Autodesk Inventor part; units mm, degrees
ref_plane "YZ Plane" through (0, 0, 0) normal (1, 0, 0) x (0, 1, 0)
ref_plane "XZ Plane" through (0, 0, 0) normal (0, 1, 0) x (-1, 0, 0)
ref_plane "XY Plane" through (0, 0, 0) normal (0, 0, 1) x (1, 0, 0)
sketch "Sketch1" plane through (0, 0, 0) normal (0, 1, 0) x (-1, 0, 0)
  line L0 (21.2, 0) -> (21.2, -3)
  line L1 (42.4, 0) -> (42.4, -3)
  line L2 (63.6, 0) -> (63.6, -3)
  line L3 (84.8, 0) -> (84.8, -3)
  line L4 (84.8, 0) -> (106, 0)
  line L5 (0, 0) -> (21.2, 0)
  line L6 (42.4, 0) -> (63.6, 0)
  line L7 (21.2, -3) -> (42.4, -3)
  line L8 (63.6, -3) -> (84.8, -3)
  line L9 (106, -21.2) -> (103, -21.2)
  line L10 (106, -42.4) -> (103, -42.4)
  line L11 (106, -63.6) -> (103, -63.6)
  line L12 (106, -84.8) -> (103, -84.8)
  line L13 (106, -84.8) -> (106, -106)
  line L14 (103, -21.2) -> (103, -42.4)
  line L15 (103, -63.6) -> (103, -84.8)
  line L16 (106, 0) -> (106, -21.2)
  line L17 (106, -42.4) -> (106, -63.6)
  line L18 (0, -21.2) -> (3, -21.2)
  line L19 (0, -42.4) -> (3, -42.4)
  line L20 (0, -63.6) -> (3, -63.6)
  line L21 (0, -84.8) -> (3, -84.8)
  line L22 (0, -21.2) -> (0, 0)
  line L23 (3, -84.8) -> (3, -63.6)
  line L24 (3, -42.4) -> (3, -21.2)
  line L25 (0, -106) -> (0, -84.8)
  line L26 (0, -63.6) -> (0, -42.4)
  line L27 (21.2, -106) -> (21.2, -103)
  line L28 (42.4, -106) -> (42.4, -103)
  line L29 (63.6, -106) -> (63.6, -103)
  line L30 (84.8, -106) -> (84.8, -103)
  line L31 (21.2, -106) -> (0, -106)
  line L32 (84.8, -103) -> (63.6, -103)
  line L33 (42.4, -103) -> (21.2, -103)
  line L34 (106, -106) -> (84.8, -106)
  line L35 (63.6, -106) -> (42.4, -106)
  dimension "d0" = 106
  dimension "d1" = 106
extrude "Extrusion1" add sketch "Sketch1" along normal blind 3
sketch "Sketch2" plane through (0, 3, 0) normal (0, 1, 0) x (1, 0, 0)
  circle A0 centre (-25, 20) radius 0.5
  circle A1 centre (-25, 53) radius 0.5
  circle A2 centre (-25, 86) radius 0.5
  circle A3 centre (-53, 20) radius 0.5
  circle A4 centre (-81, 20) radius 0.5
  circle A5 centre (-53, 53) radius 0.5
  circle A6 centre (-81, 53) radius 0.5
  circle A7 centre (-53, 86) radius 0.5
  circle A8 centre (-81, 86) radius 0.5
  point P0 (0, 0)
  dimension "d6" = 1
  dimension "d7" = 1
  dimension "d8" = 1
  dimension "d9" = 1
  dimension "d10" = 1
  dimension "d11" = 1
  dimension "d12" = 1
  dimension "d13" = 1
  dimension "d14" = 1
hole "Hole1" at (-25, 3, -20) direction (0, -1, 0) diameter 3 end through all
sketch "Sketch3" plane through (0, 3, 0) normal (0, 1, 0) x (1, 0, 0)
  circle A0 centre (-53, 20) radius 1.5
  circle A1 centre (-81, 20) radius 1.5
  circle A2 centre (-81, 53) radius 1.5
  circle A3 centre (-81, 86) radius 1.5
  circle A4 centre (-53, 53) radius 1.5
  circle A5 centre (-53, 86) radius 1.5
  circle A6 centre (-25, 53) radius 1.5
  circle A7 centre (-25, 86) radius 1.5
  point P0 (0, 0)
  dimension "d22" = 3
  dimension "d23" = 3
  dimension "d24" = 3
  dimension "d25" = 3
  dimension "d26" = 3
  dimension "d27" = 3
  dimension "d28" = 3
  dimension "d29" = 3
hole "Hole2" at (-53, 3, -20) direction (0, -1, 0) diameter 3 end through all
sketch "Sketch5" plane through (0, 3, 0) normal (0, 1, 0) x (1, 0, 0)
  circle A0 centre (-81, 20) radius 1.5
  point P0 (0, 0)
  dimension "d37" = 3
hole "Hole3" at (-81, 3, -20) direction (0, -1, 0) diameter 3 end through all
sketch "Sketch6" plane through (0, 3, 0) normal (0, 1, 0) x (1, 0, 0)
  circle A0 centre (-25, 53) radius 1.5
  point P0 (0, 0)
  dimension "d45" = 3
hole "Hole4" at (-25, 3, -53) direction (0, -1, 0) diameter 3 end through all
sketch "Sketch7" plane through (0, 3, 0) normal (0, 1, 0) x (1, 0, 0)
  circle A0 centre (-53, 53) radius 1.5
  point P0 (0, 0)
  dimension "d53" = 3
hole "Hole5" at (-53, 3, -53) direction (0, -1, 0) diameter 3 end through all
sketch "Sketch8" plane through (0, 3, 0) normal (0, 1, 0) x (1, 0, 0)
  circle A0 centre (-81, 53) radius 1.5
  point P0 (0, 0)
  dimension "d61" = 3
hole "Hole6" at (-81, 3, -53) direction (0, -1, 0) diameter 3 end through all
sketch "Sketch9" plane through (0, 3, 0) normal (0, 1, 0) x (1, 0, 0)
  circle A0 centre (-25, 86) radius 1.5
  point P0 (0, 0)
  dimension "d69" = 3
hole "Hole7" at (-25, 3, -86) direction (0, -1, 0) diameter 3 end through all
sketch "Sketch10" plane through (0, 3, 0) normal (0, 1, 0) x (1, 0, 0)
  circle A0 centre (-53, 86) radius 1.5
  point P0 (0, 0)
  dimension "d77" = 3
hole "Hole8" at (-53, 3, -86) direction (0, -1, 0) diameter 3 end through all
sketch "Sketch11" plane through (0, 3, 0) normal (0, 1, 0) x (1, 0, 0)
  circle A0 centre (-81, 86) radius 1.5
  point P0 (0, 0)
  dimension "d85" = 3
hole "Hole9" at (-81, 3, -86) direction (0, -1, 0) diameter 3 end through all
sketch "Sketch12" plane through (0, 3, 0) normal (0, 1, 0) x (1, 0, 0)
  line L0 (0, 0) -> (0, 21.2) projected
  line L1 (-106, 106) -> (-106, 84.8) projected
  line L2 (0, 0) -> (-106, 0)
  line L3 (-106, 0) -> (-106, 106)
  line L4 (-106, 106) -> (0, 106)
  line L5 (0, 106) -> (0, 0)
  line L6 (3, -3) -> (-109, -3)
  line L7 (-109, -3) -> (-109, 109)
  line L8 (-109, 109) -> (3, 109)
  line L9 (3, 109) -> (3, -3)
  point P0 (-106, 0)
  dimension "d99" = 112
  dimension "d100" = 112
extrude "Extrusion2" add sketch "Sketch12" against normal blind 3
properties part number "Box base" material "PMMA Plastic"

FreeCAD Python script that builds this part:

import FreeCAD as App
import Part
import Sketcher
from FreeCAD import Vector
Q = App.Units.Quantity


def add_polygon(sketch, points):
    """Adds a closed chain of lines whose ends are joined by coincident constraints."""
    first, n = sketch.GeometryCount, len(points)
    for a, b in zip(points, points[1:] + points[:1]):
        sketch.addGeometry(Part.LineSegment(App.Vector(*a, 0), App.Vector(*b, 0)), False)
    for i in range(n):
        sketch.addConstraint(Sketcher.Constraint("Coincident", first + i, 2, first + (i + 1) % n, 1))

doc = App.newDocument("Part")
params = doc.addObject("Spreadsheet::Sheet", "Params")
for row, (alias, value) in enumerate([
    ("sketch1_width", "3 mm"),
    ("pad1_length", "3 mm"),
    ("sketch2_diameter", "3 mm"),
    ("hole_diameter", "3 mm"),
    ("sketch3_diameter", "3 mm"),
    ("hole2_diameter", "3 mm"),
    ("sketch4_diameter", "3 mm"),
    ("hole3_diameter", "3 mm"),
    ("sketch5_diameter", "3 mm"),
    ("hole4_diameter", "3 mm"),
    ("sketch6_diameter", "3 mm"),
    ("hole5_diameter", "3 mm"),
    ("sketch7_diameter", "3 mm"),
    ("hole6_diameter", "3 mm"),
    ("sketch8_diameter", "3 mm"),
    ("hole7_diameter", "3 mm"),
    ("sketch9_diameter", "3 mm"),
    ("hole8_diameter", "3 mm"),
    ("sketch10_diameter", "3 mm"),
    ("hole9_diameter", "3 mm"),
    ("sketch11_width", "112 mm"),
    ("sketch11_width2", "106 mm"),
    ("pad2_length", "3 mm"),
], start=1):
    params.set(f"A{row}", alias)
    params.set(f"B{row}", "=" + value)
    params.setAlias(f"B{row}", alias)

body = doc.addObject("PartDesign::Body", "Body")

# Sketch on XZ plane
sketch1 = body.newObject("Sketcher::SketchObject", "Sketch")
sketch1.AttachmentSupport = (doc.getObject("XZ_Plane"), [""])
sketch1.MapMode = "FlatFace"
add_polygon(sketch1, [(-21.2, -3), (-21.2, 0), (0, 0), (0, -21.2), (-3, -21.2), (-3, -42.4), (0, -42.4), (0, -63.6), (-3, -63.6), (-3, -84.8), (0, -84.8), (0, -106), (-21.2, -106), (-21.2, -103), (-42.4, -103), (-42.4, -106), (-63.6, -106), (-63.6, -103), (-84.8, -103), (-84.8, -106), (-106, -106), (-106, -84.8), (-103, -84.8), (-103, -63.6), (-106, -63.6), (-106, -42.4), (-103, -42.4), (-103, -21.2), (-106, -21.2), (-106, 0), (-84.8, 0), (-84.8, -3), (-63.6, -3), (-63.6, 0), (-42.4, 0), (-42.4, -3)])  # lines 0-35
sketch1.addConstraint([
    Sketcher.Constraint("Vertical", 0),
    Sketcher.Constraint("Horizontal", 1),
    Sketcher.Constraint("Vertical", 2),
    Sketcher.Constraint("Horizontal", 3),
    Sketcher.Constraint("Vertical", 4),
    Sketcher.Constraint("Horizontal", 5),
    Sketcher.Constraint("Vertical", 6),
    Sketcher.Constraint("Horizontal", 7),
    Sketcher.Constraint("Vertical", 8),
    Sketcher.Constraint("Horizontal", 9),
    Sketcher.Constraint("Vertical", 10),
    Sketcher.Constraint("Horizontal", 11),
    Sketcher.Constraint("Vertical", 12),
    Sketcher.Constraint("Horizontal", 13),
    Sketcher.Constraint("Vertical", 14),
    Sketcher.Constraint("Horizontal", 15),
    Sketcher.Constraint("Vertical", 16),
    Sketcher.Constraint("Horizontal", 17),
    Sketcher.Constraint("Vertical", 18),
    Sketcher.Constraint("Horizontal", 19),
    Sketcher.Constraint("Vertical", 20),
    Sketcher.Constraint("Horizontal", 21),
    Sketcher.Constraint("Vertical", 22),
    Sketcher.Constraint("Horizontal", 23),
    Sketcher.Constraint("Vertical", 24),
    Sketcher.Constraint("Horizontal", 25),
    Sketcher.Constraint("Vertical", 26),
    Sketcher.Constraint("Horizontal", 27),
    Sketcher.Constraint("Vertical", 28),
    Sketcher.Constraint("Horizontal", 29),
    Sketcher.Constraint("Vertical", 30),
    Sketcher.Constraint("Horizontal", 31),
    Sketcher.Constraint("Vertical", 32),
    Sketcher.Constraint("Horizontal", 33),
    Sketcher.Constraint("Vertical", 34),
    Sketcher.Constraint("Horizontal", 35),
    Sketcher.Constraint("Coincident", 1, 2, -1, 1),
    Sketcher.Constraint("PointOnObject", 5, 2, -2),
    Sketcher.Constraint("PointOnObject", 9, 2, -2),
    Sketcher.Constraint("PointOnObject", 28, 2, -1),
    Sketcher.Constraint("PointOnObject", 32, 2, -1),
    Sketcher.Constraint("Horizontal", 11, 2, 14, 2),
    Sketcher.Constraint("Horizontal", 13, 2, 16, 2),
    Sketcher.Constraint("Horizontal", 15, 2, 18, 2),
    Sketcher.Constraint("Horizontal", 9, 2, 20, 2),
    Sketcher.Constraint("Horizontal", 7, 2, 22, 2),
    Sketcher.Constraint("Horizontal", 5, 2, 24, 2),
    Sketcher.Constraint("Horizontal", 3, 2, 26, 2),
    Sketcher.Constraint("Horizontal", 31, 2, 34, 2),
    Sketcher.Constraint("Vertical", 4, 2, 7, 2),
    Sketcher.Constraint("Vertical", 0, 2, 11, 2),
    Sketcher.Constraint("Vertical", 20, 2, 23, 2),
    Sketcher.Constraint("Vertical", 22, 2, 25, 2),
    Sketcher.Constraint("Vertical", 24, 2, 27, 2),
    Sketcher.Constraint("Vertical", 18, 2, 29, 2),
    Sketcher.Constraint("Vertical", 16, 2, 31, 2),
    Sketcher.Constraint("Vertical", 14, 2, 33, 2),
    Sketcher.Constraint("Equal", 11, 13),
    Sketcher.Constraint("Equal", 13, 15),
    Sketcher.Constraint("Equal", 15, 17),
    Sketcher.Constraint("Equal", 17, 19),
    Sketcher.Constraint("Equal", 9, 21),
    Sketcher.Constraint("Equal", 27, 0),
    Sketcher.Constraint("Equal", 35, 2),
    Sketcher.Constraint("Equal", 2, 4),
    Sketcher.Constraint("Equal", 4, 6),
    Sketcher.Constraint("Equal", 6, 8),
    Sketcher.Constraint("Equal", 8, 10),
    Sketcher.Constraint("Equal", 0, 12),
    Sketcher.Constraint("DistanceY", 10, 2, -1, 1, Q("106 mm")),
    Sketcher.Constraint("DistanceX", 3, 2, 3, 1, Q("3 mm")),
])
sketch1.setExpression("Constraints[106]", "Params.sketch1_width")
pad1 = body.newObject("PartDesign::Pad", "Pad")
pad1.Profile = sketch1
pad1.setExpression("Length", "Params.pad1_length")
pad1.Reversed = True

# Sketch on XZ plane
sketch2 = body.newObject("Sketcher::SketchObject", "Sketch001")
sketch2.AttachmentSupport = (doc.getObject("XZ_Plane"), [""])
sketch2.MapMode = "FlatFace"
sketch2.AttachmentOffset = App.Placement(Vector(0, 0, -3), App.Rotation())
sketch2.addGeometry(Part.Circle(Vector(-25, -20, 0), Vector(0, 0, 1), 1.5), False)
sketch2.addConstraint([
    Sketcher.Constraint("Diameter", 0, Q("3 mm")),
    Sketcher.Constraint("DistanceX", 0, 3, -1, 1, Q("25 mm")),
    Sketcher.Constraint("DistanceY", 0, 3, -1, 1, Q("20 mm")),
])
sketch2.setExpression("Constraints[0]", "Params.sketch2_diameter")
doc.recompute()
hole = body.newObject("PartDesign::Hole", "Hole")
hole.Profile = sketch2
hole.ThreadType = "None"
hole.setExpression("Diameter", "Params.hole_diameter")
hole.DepthType = "ThroughAll"
hole.Reversed = True

# Sketch on XZ plane
sketch3 = body.newObject("Sketcher::SketchObject", "Sketch002")
sketch3.AttachmentSupport = (doc.getObject("XZ_Plane"), [""])
sketch3.MapMode = "FlatFace"
sketch3.AttachmentOffset = App.Placement(Vector(0, 0, -3), App.Rotation())
sketch3.addGeometry(Part.Circle(Vector(-53, -20, 0), Vector(0, 0, 1), 1.5), False)
sketch3.addConstraint([
    Sketcher.Constraint("Diameter", 0, Q("3 mm")),
    Sketcher.Constraint("DistanceX", 0, 3, -1, 1, Q("53 mm")),
    Sketcher.Constraint("DistanceY", 0, 3, -1, 1, Q("20 mm")),
])
sketch3.setExpression("Constraints[0]", "Params.sketch3_diameter")
doc.recompute()
hole2 = body.newObject("PartDesign::Hole", "Hole001")
hole2.Profile = sketch3
hole2.ThreadType = "None"
hole2.setExpression("Diameter", "Params.hole2_diameter")
hole2.DepthType = "ThroughAll"
hole2.Reversed = True

# Sketch on XZ plane
sketch4 = body.newObject("Sketcher::SketchObject", "Sketch003")
sketch4.AttachmentSupport = (doc.getObject("XZ_Plane"), [""])
sketch4.MapMode = "FlatFace"
sketch4.AttachmentOffset = App.Placement(Vector(0, 0, -3), App.Rotation())
sketch4.addGeometry(Part.Circle(Vector(-81, -20, 0), Vector(0, 0, 1), 1.5), False)
sketch4.addConstraint([
    Sketcher.Constraint("Diameter", 0, Q("3 mm")),
    Sketcher.Constraint("DistanceX", 0, 3, -1, 1, Q("81 mm")),
    Sketcher.Constraint("DistanceY", 0, 3, -1, 1, Q("20 mm")),
])
sketch4.setExpression("Constraints[0]", "Params.sketch4_diameter")
doc.recompute()
hole3 = body.newObject("PartDesign::Hole", "Hole002")
hole3.Profile = sketch4
hole3.ThreadType = "None"
hole3.setExpression("Diameter", "Params.hole3_diameter")
hole3.DepthType = "ThroughAll"
hole3.Reversed = True

# Sketch on XZ plane
sketch5 = body.newObject("Sketcher::SketchObject", "Sketch004")
sketch5.AttachmentSupport = (doc.getObject("XZ_Plane"), [""])
sketch5.MapMode = "FlatFace"
sketch5.AttachmentOffset = App.Placement(Vector(0, 0, -3), App.Rotation())
sketch5.addGeometry(Part.Circle(Vector(-25, -53, 0), Vector(0, 0, 1), 1.5), False)
sketch5.addConstraint([
    Sketcher.Constraint("Diameter", 0, Q("3 mm")),
    Sketcher.Constraint("DistanceX", 0, 3, -1, 1, Q("25 mm")),
    Sketcher.Constraint("DistanceY", 0, 3, -1, 1, Q("53 mm")),
])
sketch5.setExpression("Constraints[0]", "Params.sketch5_diameter")
doc.recompute()
hole4 = body.newObject("PartDesign::Hole", "Hole003")
hole4.Profile = sketch5
hole4.ThreadType = "None"
hole4.setExpression("Diameter", "Params.hole4_diameter")
hole4.DepthType = "ThroughAll"
hole4.Reversed = True

# Sketch on XZ plane
sketch6 = body.newObject("Sketcher::SketchObject", "Sketch005")
sketch6.AttachmentSupport = (doc.getObject("XZ_Plane"), [""])
sketch6.MapMode = "FlatFace"
sketch6.AttachmentOffset = App.Placement(Vector(0, 0, -3), App.Rotation())
sketch6.addGeometry(Part.Circle(Vector(-53, -53, 0), Vector(0, 0, 1), 1.5), False)
sketch6.addConstraint([
    Sketcher.Constraint("Diameter", 0, Q("3 mm")),
    Sketcher.Constraint("DistanceX", 0, 3, -1, 1, Q("53 mm")),
    Sketcher.Constraint("DistanceY", 0, 3, -1, 1, Q("53 mm")),
])
sketch6.setExpression("Constraints[0]", "Params.sketch6_diameter")
doc.recompute()
hole5 = body.newObject("PartDesign::Hole", "Hole004")
hole5.Profile = sketch6
hole5.ThreadType = "None"
hole5.setExpression("Diameter", "Params.hole5_diameter")
hole5.DepthType = "ThroughAll"
hole5.Reversed = True

# Sketch on XZ plane
sketch7 = body.newObject("Sketcher::SketchObject", "Sketch006")
sketch7.AttachmentSupport = (doc.getObject("XZ_Plane"), [""])
sketch7.MapMode = "FlatFace"
sketch7.AttachmentOffset = App.Placement(Vector(0, 0, -3), App.Rotation())
sketch7.addGeometry(Part.Circle(Vector(-81, -53, 0), Vector(0, 0, 1), 1.5), False)
sketch7.addConstraint([
    Sketcher.Constraint("Diameter", 0, Q("3 mm")),
    Sketcher.Constraint("DistanceX", 0, 3, -1, 1, Q("81 mm")),
    Sketcher.Constraint("DistanceY", 0, 3, -1, 1, Q("53 mm")),
])
sketch7.setExpression("Constraints[0]", "Params.sketch7_diameter")
doc.recompute()
hole6 = body.newObject("PartDesign::Hole", "Hole005")
hole6.Profile = sketch7
hole6.ThreadType = "None"
hole6.setExpression("Diameter", "Params.hole6_diameter")
hole6.DepthType = "ThroughAll"
hole6.Reversed = True

# Sketch on XZ plane
sketch8 = body.newObject("Sketcher::SketchObject", "Sketch007")
sketch8.AttachmentSupport = (doc.getObject("XZ_Plane"), [""])
sketch8.MapMode = "FlatFace"
sketch8.AttachmentOffset = App.Placement(Vector(0, 0, -3), App.Rotation())
sketch8.addGeometry(Part.Circle(Vector(-25, -86, 0), Vector(0, 0, 1), 1.5), False)
sketch8.addConstraint([
    Sketcher.Constraint("Diameter", 0, Q("3 mm")),
    Sketcher.Constraint("DistanceX", 0, 3, -1, 1, Q("25 mm")),
    Sketcher.Constraint("DistanceY", 0, 3, -1, 1, Q("86 mm")),
])
sketch8.setExpression("Constraints[0]", "Params.sketch8_diameter")
doc.recompute()
hole7 = body.newObject("PartDesign::Hole", "Hole006")
hole7.Profile = sketch8
hole7.ThreadType = "None"
hole7.setExpression("Diameter", "Params.hole7_diameter")
hole7.DepthType = "ThroughAll"
hole7.Reversed = True

# Sketch on XZ plane
sketch9 = body.newObject("Sketcher::SketchObject", "Sketch008")
sketch9.AttachmentSupport = (doc.getObject("XZ_Plane"), [""])
sketch9.MapMode = "FlatFace"
sketch9.AttachmentOffset = App.Placement(Vector(0, 0, -3), App.Rotation())
sketch9.addGeometry(Part.Circle(Vector(-53, -86, 0), Vector(0, 0, 1), 1.5), False)
sketch9.addConstraint([
    Sketcher.Constraint("Diameter", 0, Q("3 mm")),
    Sketcher.Constraint("DistanceX", 0, 3, -1, 1, Q("53 mm")),
    Sketcher.Constraint("DistanceY", 0, 3, -1, 1, Q("86 mm")),
])
sketch9.setExpression("Constraints[0]", "Params.sketch9_diameter")
doc.recompute()
hole8 = body.newObject("PartDesign::Hole", "Hole007")
hole8.Profile = sketch9
hole8.ThreadType = "None"
hole8.setExpression("Diameter", "Params.hole8_diameter")
hole8.DepthType = "ThroughAll"
hole8.Reversed = True

# Sketch on XZ plane
sketch10 = body.newObject("Sketcher::SketchObject", "Sketch009")
sketch10.AttachmentSupport = (doc.getObject("XZ_Plane"), [""])
sketch10.MapMode = "FlatFace"
sketch10.AttachmentOffset = App.Placement(Vector(0, 0, -3), App.Rotation())
sketch10.addGeometry(Part.Circle(Vector(-81, -86, 0), Vector(0, 0, 1), 1.5), False)
sketch10.addConstraint([
    Sketcher.Constraint("Diameter", 0, Q("3 mm")),
    Sketcher.Constraint("DistanceX", 0, 3, -1, 1, Q("81 mm")),
    Sketcher.Constraint("DistanceY", 0, 3, -1, 1, Q("86 mm")),
])
sketch10.setExpression("Constraints[0]", "Params.sketch10_diameter")
doc.recompute()
hole9 = body.newObject("PartDesign::Hole", "Hole008")
hole9.Profile = sketch10
hole9.ThreadType = "None"
hole9.setExpression("Diameter", "Params.hole9_diameter")
hole9.DepthType = "ThroughAll"
hole9.Reversed = True

# Sketch on XZ plane
sketch11 = body.newObject("Sketcher::SketchObject", "Sketch010")
sketch11.AttachmentSupport = (doc.getObject("XZ_Plane"), [""])
sketch11.MapMode = "FlatFace"
sketch11.AttachmentOffset = App.Placement(Vector(0, 0, -3), App.Rotation())
add_polygon(sketch11, [(-109, 3), (3, 3), (3, -109), (-109, -109)])  # lines 0-3
add_polygon(sketch11, [(0, -106), (0, 0), (-106, 0), (-106, -106)])  # lines 4-7
sketch11.addConstraint([
    Sketcher.Constraint("Horizontal", 0),
    Sketcher.Constraint("Vertical", 1),
    Sketcher.Constraint("Horizontal", 2),
    Sketcher.Constraint("Vertical", 3),
    Sketcher.Constraint("Vertical", 4),
    Sketcher.Constraint("Horizontal", 5),
    Sketcher.Constraint("Vertical", 6),
    Sketcher.Constraint("Horizontal", 7),
    Sketcher.Constraint("Coincident", 4, 2, -1, 1),
    Sketcher.Constraint("Equal", 2, 1),
    Sketcher.Constraint("Equal", 7, 4),
    Sketcher.Constraint("DistanceX", 0, 1, 0, 2, Q("112 mm")),
    Sketcher.Constraint("DistanceX", 5, 2, 5, 1, Q("106 mm")),
    Sketcher.Constraint("DistanceX", -1, 1, 0, 2, Q("3 mm")),
    Sketcher.Constraint("DistanceY", -1, 1, 0, 2, Q("3 mm")),
])
sketch11.setExpression("Constraints[19]", "Params.sketch11_width")
sketch11.setExpression("Constraints[20]", "Params.sketch11_width2")
pad2 = body.newObject("PartDesign::Pad", "Pad001")
pad2.Profile = sketch11
pad2.setExpression("Length", "Params.pad2_length")

doc.recompute()
